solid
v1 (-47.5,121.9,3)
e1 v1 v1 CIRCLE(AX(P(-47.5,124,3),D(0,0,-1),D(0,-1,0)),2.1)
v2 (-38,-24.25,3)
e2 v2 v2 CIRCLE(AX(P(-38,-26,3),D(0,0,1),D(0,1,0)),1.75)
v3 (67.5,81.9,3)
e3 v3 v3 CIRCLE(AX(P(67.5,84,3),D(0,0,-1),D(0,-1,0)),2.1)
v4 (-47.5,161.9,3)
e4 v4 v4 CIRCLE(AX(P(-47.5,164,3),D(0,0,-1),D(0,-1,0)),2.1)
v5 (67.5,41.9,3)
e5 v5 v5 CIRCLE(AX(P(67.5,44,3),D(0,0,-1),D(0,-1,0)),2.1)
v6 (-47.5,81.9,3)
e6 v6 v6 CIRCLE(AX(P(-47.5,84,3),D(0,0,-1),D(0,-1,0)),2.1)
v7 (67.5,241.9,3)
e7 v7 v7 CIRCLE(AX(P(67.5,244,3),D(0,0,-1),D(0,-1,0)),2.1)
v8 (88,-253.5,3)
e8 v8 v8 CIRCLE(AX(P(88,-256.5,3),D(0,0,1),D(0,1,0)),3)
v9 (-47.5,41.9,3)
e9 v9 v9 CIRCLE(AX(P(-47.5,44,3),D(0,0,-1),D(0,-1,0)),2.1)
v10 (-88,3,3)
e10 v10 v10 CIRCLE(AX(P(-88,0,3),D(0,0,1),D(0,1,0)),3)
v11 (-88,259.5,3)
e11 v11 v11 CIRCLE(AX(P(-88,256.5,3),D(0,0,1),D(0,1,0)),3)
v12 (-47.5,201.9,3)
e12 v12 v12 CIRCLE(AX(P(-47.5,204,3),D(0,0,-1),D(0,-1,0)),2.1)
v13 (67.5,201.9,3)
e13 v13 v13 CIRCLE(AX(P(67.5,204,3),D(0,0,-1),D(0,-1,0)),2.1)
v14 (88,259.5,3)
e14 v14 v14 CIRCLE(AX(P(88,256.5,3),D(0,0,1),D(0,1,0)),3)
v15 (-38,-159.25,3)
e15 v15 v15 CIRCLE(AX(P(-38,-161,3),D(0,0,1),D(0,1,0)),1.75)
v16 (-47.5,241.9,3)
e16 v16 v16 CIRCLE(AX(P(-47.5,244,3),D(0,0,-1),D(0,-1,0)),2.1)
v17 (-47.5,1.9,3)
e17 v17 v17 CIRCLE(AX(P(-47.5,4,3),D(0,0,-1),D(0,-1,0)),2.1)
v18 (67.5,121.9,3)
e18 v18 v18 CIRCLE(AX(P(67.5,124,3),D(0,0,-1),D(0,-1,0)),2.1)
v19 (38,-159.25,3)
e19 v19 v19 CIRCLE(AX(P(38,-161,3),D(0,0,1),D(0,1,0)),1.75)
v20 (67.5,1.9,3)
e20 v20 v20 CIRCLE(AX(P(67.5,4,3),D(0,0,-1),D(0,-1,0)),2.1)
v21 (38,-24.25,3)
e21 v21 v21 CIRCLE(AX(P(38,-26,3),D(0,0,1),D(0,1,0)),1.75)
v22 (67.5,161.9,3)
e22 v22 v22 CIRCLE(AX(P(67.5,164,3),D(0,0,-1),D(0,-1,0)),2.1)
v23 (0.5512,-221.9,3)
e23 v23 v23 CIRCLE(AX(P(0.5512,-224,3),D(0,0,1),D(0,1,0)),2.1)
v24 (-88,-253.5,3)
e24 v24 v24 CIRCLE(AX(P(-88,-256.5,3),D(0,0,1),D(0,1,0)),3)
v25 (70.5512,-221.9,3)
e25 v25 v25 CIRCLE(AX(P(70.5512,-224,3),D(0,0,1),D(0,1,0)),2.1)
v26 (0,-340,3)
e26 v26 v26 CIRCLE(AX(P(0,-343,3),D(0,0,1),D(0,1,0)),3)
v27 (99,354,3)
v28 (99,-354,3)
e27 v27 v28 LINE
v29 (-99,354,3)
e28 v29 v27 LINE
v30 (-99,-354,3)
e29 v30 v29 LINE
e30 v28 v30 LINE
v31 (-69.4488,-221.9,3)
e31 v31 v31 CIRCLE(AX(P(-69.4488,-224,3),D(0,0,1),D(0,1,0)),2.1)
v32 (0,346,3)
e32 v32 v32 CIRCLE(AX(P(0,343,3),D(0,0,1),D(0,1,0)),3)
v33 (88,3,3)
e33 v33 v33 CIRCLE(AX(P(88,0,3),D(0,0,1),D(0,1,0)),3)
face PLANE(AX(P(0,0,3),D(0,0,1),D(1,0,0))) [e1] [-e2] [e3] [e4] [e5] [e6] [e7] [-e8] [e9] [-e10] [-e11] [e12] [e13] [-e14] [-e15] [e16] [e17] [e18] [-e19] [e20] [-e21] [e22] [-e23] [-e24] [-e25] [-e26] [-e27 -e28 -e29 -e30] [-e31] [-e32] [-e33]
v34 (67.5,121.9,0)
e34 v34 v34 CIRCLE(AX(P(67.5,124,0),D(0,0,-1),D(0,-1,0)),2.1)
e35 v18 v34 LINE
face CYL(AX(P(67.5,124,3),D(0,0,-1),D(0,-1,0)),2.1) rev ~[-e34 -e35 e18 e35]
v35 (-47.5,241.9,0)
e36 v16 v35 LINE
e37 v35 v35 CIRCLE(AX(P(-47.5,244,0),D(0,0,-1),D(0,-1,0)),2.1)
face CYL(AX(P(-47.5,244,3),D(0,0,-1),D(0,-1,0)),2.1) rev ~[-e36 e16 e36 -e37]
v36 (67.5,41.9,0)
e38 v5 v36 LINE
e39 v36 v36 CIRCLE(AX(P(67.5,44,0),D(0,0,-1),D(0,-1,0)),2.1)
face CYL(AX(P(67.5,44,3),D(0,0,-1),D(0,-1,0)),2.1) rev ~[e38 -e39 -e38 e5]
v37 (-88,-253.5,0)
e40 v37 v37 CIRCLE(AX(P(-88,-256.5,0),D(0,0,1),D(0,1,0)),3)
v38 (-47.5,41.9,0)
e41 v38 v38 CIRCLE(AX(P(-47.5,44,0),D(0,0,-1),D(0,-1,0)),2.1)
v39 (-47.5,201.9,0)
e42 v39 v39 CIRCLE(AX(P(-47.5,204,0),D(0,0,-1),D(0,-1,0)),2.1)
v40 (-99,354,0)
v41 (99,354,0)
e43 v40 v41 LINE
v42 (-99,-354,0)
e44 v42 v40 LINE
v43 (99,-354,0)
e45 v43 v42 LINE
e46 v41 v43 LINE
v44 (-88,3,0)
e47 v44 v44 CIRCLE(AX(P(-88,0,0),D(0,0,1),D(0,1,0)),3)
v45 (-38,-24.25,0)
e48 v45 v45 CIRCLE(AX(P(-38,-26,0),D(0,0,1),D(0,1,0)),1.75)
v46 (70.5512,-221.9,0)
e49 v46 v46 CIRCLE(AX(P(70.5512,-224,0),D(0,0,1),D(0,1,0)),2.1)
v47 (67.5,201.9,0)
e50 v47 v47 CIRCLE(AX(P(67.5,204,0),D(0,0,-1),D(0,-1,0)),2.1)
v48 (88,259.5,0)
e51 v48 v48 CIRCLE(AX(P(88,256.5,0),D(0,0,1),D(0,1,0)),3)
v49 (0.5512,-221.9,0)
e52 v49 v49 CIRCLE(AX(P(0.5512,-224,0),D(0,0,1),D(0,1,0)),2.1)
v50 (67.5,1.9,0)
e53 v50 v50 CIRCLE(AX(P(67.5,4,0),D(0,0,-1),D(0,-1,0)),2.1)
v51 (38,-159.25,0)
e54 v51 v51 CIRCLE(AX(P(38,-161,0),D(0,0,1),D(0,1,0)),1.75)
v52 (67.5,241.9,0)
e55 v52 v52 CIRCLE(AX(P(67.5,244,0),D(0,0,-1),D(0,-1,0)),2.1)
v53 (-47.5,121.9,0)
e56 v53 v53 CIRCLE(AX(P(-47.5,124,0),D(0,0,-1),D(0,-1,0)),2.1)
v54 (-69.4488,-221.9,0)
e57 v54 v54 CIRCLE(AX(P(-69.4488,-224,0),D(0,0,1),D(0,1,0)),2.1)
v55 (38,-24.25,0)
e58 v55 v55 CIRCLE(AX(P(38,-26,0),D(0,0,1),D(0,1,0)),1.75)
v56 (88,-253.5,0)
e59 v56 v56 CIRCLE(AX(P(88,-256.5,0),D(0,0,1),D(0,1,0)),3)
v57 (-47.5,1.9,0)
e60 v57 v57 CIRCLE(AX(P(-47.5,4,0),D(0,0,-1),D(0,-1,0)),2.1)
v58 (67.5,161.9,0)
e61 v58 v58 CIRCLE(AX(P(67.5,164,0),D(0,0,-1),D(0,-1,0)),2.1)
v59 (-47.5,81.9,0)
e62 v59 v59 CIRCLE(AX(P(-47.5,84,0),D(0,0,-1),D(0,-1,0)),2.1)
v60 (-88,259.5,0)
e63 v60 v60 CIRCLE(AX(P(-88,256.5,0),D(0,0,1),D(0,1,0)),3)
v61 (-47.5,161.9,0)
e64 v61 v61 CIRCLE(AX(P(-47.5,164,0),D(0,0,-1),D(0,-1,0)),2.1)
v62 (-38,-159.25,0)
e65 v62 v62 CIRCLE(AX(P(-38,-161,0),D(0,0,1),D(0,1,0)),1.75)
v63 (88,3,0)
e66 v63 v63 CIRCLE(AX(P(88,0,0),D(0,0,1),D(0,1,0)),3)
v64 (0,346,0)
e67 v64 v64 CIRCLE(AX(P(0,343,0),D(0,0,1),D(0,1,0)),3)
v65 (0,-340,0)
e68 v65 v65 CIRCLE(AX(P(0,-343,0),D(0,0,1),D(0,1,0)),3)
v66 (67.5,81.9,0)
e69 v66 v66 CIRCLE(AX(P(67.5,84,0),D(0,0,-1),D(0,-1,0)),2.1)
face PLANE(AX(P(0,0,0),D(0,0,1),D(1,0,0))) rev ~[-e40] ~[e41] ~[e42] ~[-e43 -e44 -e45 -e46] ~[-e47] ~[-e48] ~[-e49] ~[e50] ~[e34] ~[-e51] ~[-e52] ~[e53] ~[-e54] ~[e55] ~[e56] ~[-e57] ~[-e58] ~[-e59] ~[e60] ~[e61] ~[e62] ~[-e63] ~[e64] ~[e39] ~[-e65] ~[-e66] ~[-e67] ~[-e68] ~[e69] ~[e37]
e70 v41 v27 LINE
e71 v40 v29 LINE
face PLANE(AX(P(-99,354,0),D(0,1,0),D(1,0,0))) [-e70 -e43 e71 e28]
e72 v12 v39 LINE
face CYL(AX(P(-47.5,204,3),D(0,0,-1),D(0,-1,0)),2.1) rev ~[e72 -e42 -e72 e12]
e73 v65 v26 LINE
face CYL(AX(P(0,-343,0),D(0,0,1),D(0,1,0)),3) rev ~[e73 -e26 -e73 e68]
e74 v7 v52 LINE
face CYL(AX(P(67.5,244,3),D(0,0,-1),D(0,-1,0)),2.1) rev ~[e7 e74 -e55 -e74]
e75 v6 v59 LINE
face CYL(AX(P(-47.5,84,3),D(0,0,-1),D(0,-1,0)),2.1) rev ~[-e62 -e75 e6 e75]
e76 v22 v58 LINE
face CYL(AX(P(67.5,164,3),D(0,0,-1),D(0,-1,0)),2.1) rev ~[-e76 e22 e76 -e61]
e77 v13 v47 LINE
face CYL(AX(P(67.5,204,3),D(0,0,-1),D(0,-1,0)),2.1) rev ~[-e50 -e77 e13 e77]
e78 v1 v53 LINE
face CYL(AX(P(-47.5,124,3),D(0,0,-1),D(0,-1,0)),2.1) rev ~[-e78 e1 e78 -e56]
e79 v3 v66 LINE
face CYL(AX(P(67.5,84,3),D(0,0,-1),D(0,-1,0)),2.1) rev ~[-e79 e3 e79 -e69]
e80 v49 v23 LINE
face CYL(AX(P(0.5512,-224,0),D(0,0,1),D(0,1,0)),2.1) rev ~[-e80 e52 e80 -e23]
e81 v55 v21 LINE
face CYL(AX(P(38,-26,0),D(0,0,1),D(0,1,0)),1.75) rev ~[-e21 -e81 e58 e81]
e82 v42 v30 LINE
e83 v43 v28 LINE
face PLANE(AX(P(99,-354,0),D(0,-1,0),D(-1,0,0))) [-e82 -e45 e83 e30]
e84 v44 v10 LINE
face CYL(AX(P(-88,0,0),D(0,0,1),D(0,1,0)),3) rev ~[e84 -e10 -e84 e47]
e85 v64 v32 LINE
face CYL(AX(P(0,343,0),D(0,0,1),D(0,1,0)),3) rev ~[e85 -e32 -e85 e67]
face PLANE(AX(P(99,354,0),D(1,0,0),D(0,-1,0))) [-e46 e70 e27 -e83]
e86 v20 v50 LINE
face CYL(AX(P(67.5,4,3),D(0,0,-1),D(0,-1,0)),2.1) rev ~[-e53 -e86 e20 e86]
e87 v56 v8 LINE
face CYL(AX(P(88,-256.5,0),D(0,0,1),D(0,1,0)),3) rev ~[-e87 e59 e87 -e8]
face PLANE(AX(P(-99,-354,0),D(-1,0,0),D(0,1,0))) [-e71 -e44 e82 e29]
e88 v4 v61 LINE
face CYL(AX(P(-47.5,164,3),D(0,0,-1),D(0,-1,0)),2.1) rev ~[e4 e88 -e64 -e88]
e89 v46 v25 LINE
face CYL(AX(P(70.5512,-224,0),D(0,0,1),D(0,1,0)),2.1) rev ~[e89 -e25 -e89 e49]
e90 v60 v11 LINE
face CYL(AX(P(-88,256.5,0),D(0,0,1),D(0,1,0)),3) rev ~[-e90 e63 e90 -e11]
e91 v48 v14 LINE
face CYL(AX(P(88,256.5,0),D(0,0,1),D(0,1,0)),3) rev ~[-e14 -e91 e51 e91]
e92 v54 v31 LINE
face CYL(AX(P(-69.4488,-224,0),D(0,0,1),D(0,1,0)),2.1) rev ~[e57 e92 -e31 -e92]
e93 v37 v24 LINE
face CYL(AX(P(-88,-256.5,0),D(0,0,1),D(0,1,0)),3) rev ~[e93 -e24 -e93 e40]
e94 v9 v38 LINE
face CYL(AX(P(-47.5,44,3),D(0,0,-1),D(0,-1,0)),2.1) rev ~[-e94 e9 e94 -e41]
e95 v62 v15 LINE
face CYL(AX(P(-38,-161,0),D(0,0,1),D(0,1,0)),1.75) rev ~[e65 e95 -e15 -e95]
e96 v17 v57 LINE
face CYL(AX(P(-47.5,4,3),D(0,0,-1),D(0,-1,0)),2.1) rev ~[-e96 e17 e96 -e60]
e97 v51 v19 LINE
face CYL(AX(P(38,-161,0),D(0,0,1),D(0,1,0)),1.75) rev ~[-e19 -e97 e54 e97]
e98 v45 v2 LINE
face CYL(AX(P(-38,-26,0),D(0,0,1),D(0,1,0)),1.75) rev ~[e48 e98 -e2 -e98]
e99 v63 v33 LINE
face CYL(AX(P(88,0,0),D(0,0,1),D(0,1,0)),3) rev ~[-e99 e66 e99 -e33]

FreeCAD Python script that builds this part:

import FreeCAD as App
import Part
import Sketcher
Q = App.Units.Quantity


def add_polygon(sketch, points):
    """Adds a closed chain of lines whose ends are joined by coincident constraints."""
    first, n = sketch.GeometryCount, len(points)
    for a, b in zip(points, points[1:] + points[:1]):
        sketch.addGeometry(Part.LineSegment(App.Vector(*a, 0), App.Vector(*b, 0)), False)
    for i in range(n):
        sketch.addConstraint(Sketcher.Constraint("Coincident", first + i, 2, first + (i + 1) % n, 1))

doc = App.newDocument("Part")
body = doc.addObject("PartDesign::Body", "Body")

# Sketch on XY plane
sketch1 = doc.addObject("Sketcher::SketchObject", "Sketch")
body.addObject(sketch1)
sketch1.AttachmentSupport = (doc.XY_Plane, [""])
sketch1.MapMode = "FlatFace"
add_polygon(sketch1, [(-99, -354), (99, -354), (99, 354), (-99, 354)])  # lines 0-3
sketch1.addConstraint(Sketcher.Constraint("Horizontal", 0))
sketch1.addConstraint(Sketcher.Constraint("Vertical", 1))
sketch1.addConstraint(Sketcher.Constraint("Horizontal", 2))
sketch1.addConstraint(Sketcher.Constraint("Vertical", 3))
sketch1.addConstraint(Sketcher.Constraint("Symmetric", 0, 2, 2, 2, -1, 1))
sketch1.addConstraint(Sketcher.Constraint("DistanceX", 0, 1, 0, 2, Q("198 mm")))
sketch1.addConstraint(Sketcher.Constraint("DistanceY", 1, 1, 1, 2, Q("708 mm")))
pad1 = doc.addObject("PartDesign::Pad", "Pad")
body.addObject(pad1)
pad1.Profile = sketch1
pad1.Length = 3

# Sketch on XY plane
sketch2 = doc.addObject("Sketcher::SketchObject", "Sketch001")
body.addObject(sketch2)
sketch2.AttachmentSupport = (doc.XY_Plane, [""])
sketch2.MapMode = "FlatFace"
sketch2.AttachmentOffset = App.Placement(App.Vector(0, 0, 3), App.Rotation())
sketch2.addGeometry(Part.Circle(App.Vector(67.5, 244, 0), App.Vector(0, 0, 1), 2.1), False)
sketch2.addGeometry(Part.Circle(App.Vector(-47.5, 244, 0), App.Vector(0, 0, 1), 2.1), False)
sketch2.addGeometry(Part.Circle(App.Vector(67.5, 204, 0), App.Vector(0, 0, 1), 2.1), False)
sketch2.addGeometry(Part.Circle(App.Vector(-47.5, 204, 0), App.Vector(0, 0, 1), 2.1), False)
sketch2.addGeometry(Part.Circle(App.Vector(67.5, 164, 0), App.Vector(0, 0, 1), 2.1), False)
sketch2.addGeometry(Part.Circle(App.Vector(-47.5, 164, 0), App.Vector(0, 0, 1), 2.1), False)
sketch2.addGeometry(Part.Circle(App.Vector(67.5, 124, 0), App.Vector(0, 0, 1), 2.1), False)
sketch2.addGeometry(Part.Circle(App.Vector(-47.5, 124, 0), App.Vector(0, 0, 1), 2.1), False)
sketch2.addGeometry(Part.Circle(App.Vector(67.5, 84, 0), App.Vector(0, 0, 1), 2.1), False)
sketch2.addGeometry(Part.Circle(App.Vector(-47.5, 84, 0), App.Vector(0, 0, 1), 2.1), False)
sketch2.addGeometry(Part.Circle(App.Vector(67.5, 44, 0), App.Vector(0, 0, 1), 2.1), False)
sketch2.addGeometry(Part.Circle(App.Vector(-47.5, 44, 0), App.Vector(0, 0, 1), 2.1), False)
sketch2.addGeometry(Part.Circle(App.Vector(67.5, 4, 0), App.Vector(0, 0, 1), 2.1), False)
sketch2.addGeometry(Part.Circle(App.Vector(-47.5, 4, 0), App.Vector(0, 0, 1), 2.1), False)
sketch2.addConstraint(Sketcher.Constraint("Equal", 0, 1))
sketch2.addConstraint(Sketcher.Constraint("Equal", 1, 2))
sketch2.addConstraint(Sketcher.Constraint("Equal", 2, 3))
sketch2.addConstraint(Sketcher.Constraint("Equal", 3, 4))
sketch2.addConstraint(Sketcher.Constraint("Equal", 4, 5))
sketch2.addConstraint(Sketcher.Constraint("Equal", 5, 6))
sketch2.addConstraint(Sketcher.Constraint("Equal", 6, 7))
sketch2.addConstraint(Sketcher.Constraint("Equal", 7, 8))
sketch2.addConstraint(Sketcher.Constraint("Equal", 8, 9))
sketch2.addConstraint(Sketcher.Constraint("Equal", 9, 10))
sketch2.addConstraint(Sketcher.Constraint("Equal", 10, 11))
sketch2.addConstraint(Sketcher.Constraint("Equal", 11, 12))
sketch2.addConstraint(Sketcher.Constraint("Equal", 12, 13))
sketch2.addConstraint(Sketcher.Constraint("Horizontal", 0, 3, 1, 3))
sketch2.addConstraint(Sketcher.Constraint("Horizontal", 2, 3, 3, 3))
sketch2.addConstraint(Sketcher.Constraint("Horizontal", 4, 3, 5, 3))
sketch2.addConstraint(Sketcher.Constraint("Horizontal", 6, 3, 7, 3))
sketch2.addConstraint(Sketcher.Constraint("Horizontal", 8, 3, 9, 3))
sketch2.addConstraint(Sketcher.Constraint("Horizontal", 10, 3, 11, 3))
sketch2.addConstraint(Sketcher.Constraint("Horizontal", 12, 3, 13, 3))
sketch2.addConstraint(Sketcher.Constraint("Vertical", 0, 3, 2, 3))
sketch2.addConstraint(Sketcher.Constraint("Vertical", 1, 3, 3, 3))
sketch2.addConstraint(Sketcher.Constraint("Vertical", 2, 3, 4, 3))
sketch2.addConstraint(Sketcher.Constraint("Vertical", 3, 3, 5, 3))
sketch2.addConstraint(Sketcher.Constraint("Vertical", 4, 3, 6, 3))
sketch2.addConstraint(Sketcher.Constraint("Vertical", 5, 3, 7, 3))
sketch2.addConstraint(Sketcher.Constraint("Vertical", 6, 3, 8, 3))
sketch2.addConstraint(Sketcher.Constraint("Vertical", 7, 3, 9, 3))
sketch2.addConstraint(Sketcher.Constraint("Vertical", 8, 3, 10, 3))
sketch2.addConstraint(Sketcher.Constraint("Vertical", 9, 3, 11, 3))
sketch2.addConstraint(Sketcher.Constraint("Vertical", 10, 3, 12, 3))
sketch2.addConstraint(Sketcher.Constraint("Vertical", 11, 3, 13, 3))
sketch2.addConstraint(Sketcher.Constraint("Diameter", 0, Q("4.2 mm")))
sketch2.addConstraint(Sketcher.Constraint("DistanceY", -1, 1, 0, 3, Q("244 mm")))
sketch2.addConstraint(Sketcher.Constraint("DistanceY", -1, 1, 2, 3, Q("204 mm")))
sketch2.addConstraint(Sketcher.Constraint("DistanceY", -1, 1, 4, 3, Q("164 mm")))
sketch2.addConstraint(Sketcher.Constraint("DistanceY", -1, 1, 6, 3, Q("124 mm")))
sketch2.addConstraint(Sketcher.Constraint("DistanceY", -1, 1, 8, 3, Q("84 mm")))
sketch2.addConstraint(Sketcher.Constraint("DistanceY", -1, 1, 10, 3, Q("44 mm")))
sketch2.addConstraint(Sketcher.Constraint("DistanceY", -1, 1, 12, 3, Q("4 mm")))
sketch2.addConstraint(Sketcher.Constraint("DistanceX", 1, 3, 0, 3, Q("115 mm")))
sketch2.addConstraint(Sketcher.Constraint("DistanceX", -1, 1, 0, 3, Q("67.5 mm")))
doc.recompute()
hole = doc.addObject("PartDesign::Hole", "Hole")
body.addObject(hole)
hole.Profile = sketch2
hole.ThreadType = "None"
hole.Diameter = 4.2
hole.DepthType = "ThroughAll"

# Sketch on XY plane
sketch3 = doc.addObject("Sketcher::SketchObject", "Sketch002")
body.addObject(sketch3)
sketch3.AttachmentSupport = (doc.XY_Plane, [""])
sketch3.MapMode = "FlatFace"
sketch3.addGeometry(Part.Circle(App.Vector(-38, -161, 0), App.Vector(0, 0, 1), 1.8), False)
sketch3.addGeometry(Part.Circle(App.Vector(38, -161, 0), App.Vector(0, 0, 1), 1.8), False)
sketch3.addGeometry(Part.Circle(App.Vector(38, -26, 0), App.Vector(0, 0, 1), 1.8), False)
sketch3.addGeometry(Part.Circle(App.Vector(-38, -26, 0), App.Vector(0, 0, 1), 1.8), False)
sketch3.addConstraint(Sketcher.Constraint("Equal", 0, 1))
sketch3.addConstraint(Sketcher.Constraint("Equal", 1, 2))
sketch3.addConstraint(Sketcher.Constraint("Equal", 2, 3))
sketch3.addConstraint(Sketcher.Constraint("Symmetric", 0, 3, 1, 3, -2))
sketch3.addConstraint(Sketcher.Constraint("Symmetric", 2, 3, 3, 3, -2))
sketch3.addConstraint(Sketcher.Constraint("Vertical", 1, 3, 2, 3))
sketch3.addConstraint(Sketcher.Constraint("Diameter", 0, Q("3.5 mm")))
sketch3.addConstraint(Sketcher.Constraint("DistanceX", 0, 3, -1, 1, Q("38 mm")))
sketch3.addConstraint(Sketcher.Constraint("DistanceY", 0, 3, -1, 1, Q("161 mm")))
sketch3.addConstraint(Sketcher.Constraint("DistanceY", 2, 3, -1, 1, Q("26 mm")))
doc.recompute()
hole2 = doc.addObject("PartDesign::Hole", "Hole001")
body.addObject(hole2)
hole2.Profile = sketch3
hole2.ThreadType = "None"
hole2.Diameter = 3.5
hole2.DepthType = "ThroughAll"
hole2.Reversed = True

# Sketch on XY plane
sketch4 = doc.addObject("Sketcher::SketchObject", "Sketch003")
body.addObject(sketch4)
sketch4.AttachmentSupport = (doc.XY_Plane, [""])
sketch4.MapMode = "FlatFace"
sketch4.addGeometry(Part.Circle(App.Vector(0, -343, 0), App.Vector(0, 0, 1), 3), False)
sketch4.addGeometry(Part.Circle(App.Vector(0, 343, 0), App.Vector(0, 0, 1), 3), False)
sketch4.addGeometry(Part.Circle(App.Vector(88, 0, 0), App.Vector(0, 0, 1), 3), False)
sketch4.addGeometry(Part.Circle(App.Vector(-88, 0, 0), App.Vector(0, 0, 1), 3), False)
sketch4.addGeometry(Part.Circle(App.Vector(-88, -256.5, 0), App.Vector(0, 0, 1), 3), False)
sketch4.addGeometry(Part.Circle(App.Vector(88, -256.5, 0), App.Vector(0, 0, 1), 3), False)
sketch4.addGeometry(Part.Circle(App.Vector(88, 256.5, 0), App.Vector(0, 0, 1), 3), False)
sketch4.addGeometry(Part.Circle(App.Vector(-88, 256.5, 0), App.Vector(0, 0, 1), 3), False)
sketch4.addConstraint(Sketcher.Constraint("Equal", 0, 1))
sketch4.addConstraint(Sketcher.Constraint("Equal", 1, 2))
sketch4.addConstraint(Sketcher.Constraint("Equal", 2, 3))
sketch4.addConstraint(Sketcher.Constraint("Equal", 3, 4))
sketch4.addConstraint(Sketcher.Constraint("Equal", 4, 5))
sketch4.addConstraint(Sketcher.Constraint("Equal", 5, 6))
sketch4.addConstraint(Sketcher.Constraint("Equal", 6, 7))
sketch4.addConstraint(Sketcher.Constraint("Symmetric", 0, 3, 1, 3, -1, 1))
sketch4.addConstraint(Sketcher.Constraint("Symmetric", 2, 3, 3, 3, -1, 1))
sketch4.addConstraint(Sketcher.Constraint("Symmetric", 4, 3, 6, 3, -1, 1))
sketch4.addConstraint(Sketcher.Constraint("Symmetric", 5, 3, 7, 3, -1, 1))
sketch4.addConstraint(Sketcher.Constraint("Symmetric", 4, 3, 5, 3, -2))
sketch4.addConstraint(Sketcher.Constraint("PointOnObject", 0, 3, -2))
sketch4.addConstraint(Sketcher.Constraint("PointOnObject", 2, 3, -1))
sketch4.addConstraint(Sketcher.Constraint("Vertical", 3, 3, 4, 3))
sketch4.addConstraint(Sketcher.Constraint("Diameter", 0, Q("6 mm")))
sketch4.addConstraint(Sketcher.Constraint("DistanceY", 0, 3, -1, 1, Q("343 mm")))
sketch4.addConstraint(Sketcher.Constraint("DistanceX", -1, 1, 2, 3, Q("88 mm")))
sketch4.addConstraint(Sketcher.Constraint("DistanceY", 5, 3, 6, 3, Q("513 mm")))
doc.recompute()
hole3 = doc.addObject("PartDesign::Hole", "Hole002")
body.addObject(hole3)
hole3.Profile = sketch4
hole3.ThreadType = "None"
hole3.Diameter = 6
hole3.DepthType = "ThroughAll"
hole3.Reversed = True

# Sketch on XY plane
sketch5 = doc.addObject("Sketcher::SketchObject", "Sketch004")
body.addObject(sketch5)
sketch5.AttachmentSupport = (doc.XY_Plane, [""])
sketch5.MapMode = "FlatFace"
sketch5.addGeometry(Part.Circle(App.Vector(0.6, -224, 0), App.Vector(0, 0, 1), 2.1), False)
sketch5.addGeometry(Part.Circle(App.Vector(70.6, -224, 0), App.Vector(0, 0, 1), 2.1), False)
sketch5.addGeometry(Part.Circle(App.Vector(-69.4, -224, 0), App.Vector(0, 0, 1), 2.1), False)
sketch5.addConstraint(Sketcher.Constraint("Equal", 0, 1))
sketch5.addConstraint(Sketcher.Constraint("Equal", 1, 2))
sketch5.addConstraint(Sketcher.Constraint("Horizontal", 0, 3, 1, 3))
sketch5.addConstraint(Sketcher.Constraint("Horizontal", 1, 3, 2, 3))
sketch5.addConstraint(Sketcher.Constraint("Diameter", 0, Q("4.2 mm")))
sketch5.addConstraint(Sketcher.Constraint("DistanceY", 0, 3, -1, 1, Q("224 mm")))
sketch5.addConstraint(Sketcher.Constraint("DistanceX", 0, 3, 1, 3, Q("70 mm")))
sketch5.addConstraint(Sketcher.Constraint("DistanceX", 2, 3, 0, 3, Q("70 mm")))
sketch5.addConstraint(Sketcher.Constraint("DistanceX", -1, 1, 0, 3, Q("0.5512 mm")))
doc.recompute()
hole4 = doc.addObject("PartDesign::Hole", "Hole003")
body.addObject(hole4)
hole4.Profile = sketch5
hole4.ThreadType = "None"
hole4.Diameter = 4.2
hole4.DepthType = "ThroughAll"
hole4.Reversed = True

doc.recompute()
